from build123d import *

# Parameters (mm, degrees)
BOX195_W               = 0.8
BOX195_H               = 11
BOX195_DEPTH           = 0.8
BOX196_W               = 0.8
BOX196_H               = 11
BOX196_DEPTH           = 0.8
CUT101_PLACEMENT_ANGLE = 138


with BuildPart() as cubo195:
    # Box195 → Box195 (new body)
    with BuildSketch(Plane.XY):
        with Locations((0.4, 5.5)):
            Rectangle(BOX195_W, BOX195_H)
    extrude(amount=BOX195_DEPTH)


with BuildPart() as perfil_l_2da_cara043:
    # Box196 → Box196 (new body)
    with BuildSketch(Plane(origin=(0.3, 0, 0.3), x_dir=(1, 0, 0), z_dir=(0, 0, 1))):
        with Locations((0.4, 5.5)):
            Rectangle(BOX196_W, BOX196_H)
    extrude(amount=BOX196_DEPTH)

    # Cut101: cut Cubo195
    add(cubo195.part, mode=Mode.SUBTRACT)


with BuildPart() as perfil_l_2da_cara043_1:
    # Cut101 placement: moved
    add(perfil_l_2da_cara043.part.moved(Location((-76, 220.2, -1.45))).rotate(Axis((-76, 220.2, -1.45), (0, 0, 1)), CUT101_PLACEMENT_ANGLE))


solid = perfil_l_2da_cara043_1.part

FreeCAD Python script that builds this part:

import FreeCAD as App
import Part
import Sketcher
from FreeCAD import Vector

doc = App.newDocument("Part")
body = doc.addObject("PartDesign::Body", "Body")

# Sketch on XY plane
sketch1 = body.newObject("Sketcher::SketchObject", "Sketch")
sketch1.AttachmentSupport = (doc.getObject("XY_Plane"), [""])
sketch1.MapMode = "FlatFace"
sketch1.addGeometry(Part.LineSegment(Vector(0, 11, 0), Vector(0, 0, 0)), False)
sketch1.addGeometry(Part.LineSegment(Vector(0, 0, 0), Vector(0.8, 0, 0)), False)
sketch1.addGeometry(Part.LineSegment(Vector(0.8, 0, 0), Vector(0.8, 11, 0)), False)
sketch1.addGeometry(Part.LineSegment(Vector(0.8, 11, 0), Vector(0, 11, 0)), False)
sketch1.addConstraint(Sketcher.Constraint("Coincident", 0, 2, 1, 1))
sketch1.addConstraint(Sketcher.Constraint("Coincident", 1, 2, 2, 1))
sketch1.addConstraint(Sketcher.Constraint("Coincident", 2, 2, 3, 1))
sketch1.addConstraint(Sketcher.Constraint("Coincident", 3, 2, 0, 1))
sketch1.addConstraint(Sketcher.Constraint("Vertical", 0))
sketch1.addConstraint(Sketcher.Constraint("Horizontal", 1))
sketch1.addConstraint(Sketcher.Constraint("Vertical", 2))
sketch1.addConstraint(Sketcher.Constraint("Horizontal", 3))
sketch1.addConstraint(Sketcher.Constraint("Coincident", 0, 2, -1, 1))
sketch1.addConstraint(Sketcher.Constraint("DistanceY", 0, 2, 0, 1, 11.0))
sketch1.addConstraint(Sketcher.Constraint("DistanceX", 1, 1, 1, 2, 0.8))
pad1 = body.newObject("PartDesign::Pad", "Pad")
pad1.Profile = sketch1
pad1.Length = 0.8
body2 = doc.addObject("PartDesign::Body", "Body001")

# Sketch on XY plane
sketch2 = body2.newObject("Sketcher::SketchObject", "Sketch001")
sketch2.AttachmentSupport = (doc.getObject("XY_Plane001"), [""])
sketch2.MapMode = "FlatFace"
sketch2.AttachmentOffset = App.Placement(Vector(0, 0, 0.3), App.Rotation())
sketch2.addGeometry(Part.LineSegment(Vector(0.3, 11, 0), Vector(0.3, 0, 0)), False)
sketch2.addGeometry(Part.LineSegment(Vector(0.3, 0, 0), Vector(1.1, 0, 0)), False)
sketch2.addGeometry(Part.LineSegment(Vector(1.1, 0, 0), Vector(1.1, 11, 0)), False)
sketch2.addGeometry(Part.LineSegment(Vector(1.1, 11, 0), Vector(0.3, 11, 0)), False)
sketch2.addConstraint(Sketcher.Constraint("Coincident", 0, 2, 1, 1))
sketch2.addConstraint(Sketcher.Constraint("Coincident", 1, 2, 2, 1))
sketch2.addConstraint(Sketcher.Constraint("Coincident", 2, 2, 3, 1))
sketch2.addConstraint(Sketcher.Constraint("Coincident", 3, 2, 0, 1))
sketch2.addConstraint(Sketcher.Constraint("Vertical", 0))
sketch2.addConstraint(Sketcher.Constraint("Horizontal", 1))
sketch2.addConstraint(Sketcher.Constraint("Vertical", 2))
sketch2.addConstraint(Sketcher.Constraint("Horizontal", 3))
sketch2.addConstraint(Sketcher.Constraint("PointOnObject", 0, 2, -1))
sketch2.addConstraint(Sketcher.Constraint("DistanceY", 0, 2, 0, 1, 11.0))
sketch2.addConstraint(Sketcher.Constraint("DistanceX", 1, 1, 1, 2, 0.8))
sketch2.addConstraint(Sketcher.Constraint("DistanceX", -1, 1, 0, 2, 0.3))
pad2 = body2.newObject("PartDesign::Pad", "Pad001")
pad2.Profile = sketch2
pad2.Length = 0.8
doc.recompute()

boolean = body2.newObject("PartDesign::Boolean", "Boolean")
boolean.Type = "Cut"
boolean.addObjects([body])
body3 = doc.addObject("PartDesign::Body", "Body002")
doc.recompute()

body2.Placement = App.Placement(Vector(-76, 220.2, -1.45), App.Rotation(Vector(0, 0, 1), 138))
boolean2 = body3.newObject("PartDesign::Boolean", "Boolean001")
boolean2.Type = "Fuse"
boolean2.addObjects([body2])

doc.recompute()
